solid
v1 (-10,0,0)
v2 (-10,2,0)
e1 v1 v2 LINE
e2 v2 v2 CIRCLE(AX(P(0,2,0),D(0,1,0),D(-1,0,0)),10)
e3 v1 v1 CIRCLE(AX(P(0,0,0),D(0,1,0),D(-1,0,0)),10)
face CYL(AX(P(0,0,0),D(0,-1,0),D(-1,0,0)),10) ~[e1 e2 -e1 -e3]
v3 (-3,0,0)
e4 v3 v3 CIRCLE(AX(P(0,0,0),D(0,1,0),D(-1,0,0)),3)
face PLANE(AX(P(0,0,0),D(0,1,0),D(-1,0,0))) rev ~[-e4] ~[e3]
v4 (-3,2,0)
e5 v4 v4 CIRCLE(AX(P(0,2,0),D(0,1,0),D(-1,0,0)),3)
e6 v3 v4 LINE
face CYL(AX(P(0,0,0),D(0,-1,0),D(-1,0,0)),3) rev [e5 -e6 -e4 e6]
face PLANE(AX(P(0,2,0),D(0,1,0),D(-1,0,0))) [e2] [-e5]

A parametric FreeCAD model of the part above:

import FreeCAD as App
import Part
import Sketcher
from FreeCAD import Vector

doc = App.newDocument("Part")
body = doc.addObject("PartDesign::Body", "Body")

sketch1 = doc.addObject("Sketcher::SketchObject", "Sketch")
body.addObject(sketch1)
sketch1.AttachmentSupport = (doc.XZ_Plane, [""])
sketch1.MapMode = "FlatFace"
sketch1.addGeometry(Part.Circle(Vector(0, 0, 0), Vector(0, 0, 1), 10), False)
sketch1.addGeometry(Part.Circle(Vector(0, 0, 0), Vector(0, 0, 1), 3), False)
sketch1.addConstraint(Sketcher.Constraint("Coincident", 0, 3, -1, 1))
sketch1.addConstraint(Sketcher.Constraint("Coincident", 1, 3, -1, 1))
sketch1.addConstraint(Sketcher.Constraint("Diameter", 0, 20.0))
sketch1.addConstraint(Sketcher.Constraint("Diameter", 1, 6.0))
pad1 = doc.addObject("PartDesign::Pad", "Pad")
body.addObject(pad1)
pad1.Profile = sketch1
pad1.Length = 2
pad1.Reversed = True

doc.recompute()
